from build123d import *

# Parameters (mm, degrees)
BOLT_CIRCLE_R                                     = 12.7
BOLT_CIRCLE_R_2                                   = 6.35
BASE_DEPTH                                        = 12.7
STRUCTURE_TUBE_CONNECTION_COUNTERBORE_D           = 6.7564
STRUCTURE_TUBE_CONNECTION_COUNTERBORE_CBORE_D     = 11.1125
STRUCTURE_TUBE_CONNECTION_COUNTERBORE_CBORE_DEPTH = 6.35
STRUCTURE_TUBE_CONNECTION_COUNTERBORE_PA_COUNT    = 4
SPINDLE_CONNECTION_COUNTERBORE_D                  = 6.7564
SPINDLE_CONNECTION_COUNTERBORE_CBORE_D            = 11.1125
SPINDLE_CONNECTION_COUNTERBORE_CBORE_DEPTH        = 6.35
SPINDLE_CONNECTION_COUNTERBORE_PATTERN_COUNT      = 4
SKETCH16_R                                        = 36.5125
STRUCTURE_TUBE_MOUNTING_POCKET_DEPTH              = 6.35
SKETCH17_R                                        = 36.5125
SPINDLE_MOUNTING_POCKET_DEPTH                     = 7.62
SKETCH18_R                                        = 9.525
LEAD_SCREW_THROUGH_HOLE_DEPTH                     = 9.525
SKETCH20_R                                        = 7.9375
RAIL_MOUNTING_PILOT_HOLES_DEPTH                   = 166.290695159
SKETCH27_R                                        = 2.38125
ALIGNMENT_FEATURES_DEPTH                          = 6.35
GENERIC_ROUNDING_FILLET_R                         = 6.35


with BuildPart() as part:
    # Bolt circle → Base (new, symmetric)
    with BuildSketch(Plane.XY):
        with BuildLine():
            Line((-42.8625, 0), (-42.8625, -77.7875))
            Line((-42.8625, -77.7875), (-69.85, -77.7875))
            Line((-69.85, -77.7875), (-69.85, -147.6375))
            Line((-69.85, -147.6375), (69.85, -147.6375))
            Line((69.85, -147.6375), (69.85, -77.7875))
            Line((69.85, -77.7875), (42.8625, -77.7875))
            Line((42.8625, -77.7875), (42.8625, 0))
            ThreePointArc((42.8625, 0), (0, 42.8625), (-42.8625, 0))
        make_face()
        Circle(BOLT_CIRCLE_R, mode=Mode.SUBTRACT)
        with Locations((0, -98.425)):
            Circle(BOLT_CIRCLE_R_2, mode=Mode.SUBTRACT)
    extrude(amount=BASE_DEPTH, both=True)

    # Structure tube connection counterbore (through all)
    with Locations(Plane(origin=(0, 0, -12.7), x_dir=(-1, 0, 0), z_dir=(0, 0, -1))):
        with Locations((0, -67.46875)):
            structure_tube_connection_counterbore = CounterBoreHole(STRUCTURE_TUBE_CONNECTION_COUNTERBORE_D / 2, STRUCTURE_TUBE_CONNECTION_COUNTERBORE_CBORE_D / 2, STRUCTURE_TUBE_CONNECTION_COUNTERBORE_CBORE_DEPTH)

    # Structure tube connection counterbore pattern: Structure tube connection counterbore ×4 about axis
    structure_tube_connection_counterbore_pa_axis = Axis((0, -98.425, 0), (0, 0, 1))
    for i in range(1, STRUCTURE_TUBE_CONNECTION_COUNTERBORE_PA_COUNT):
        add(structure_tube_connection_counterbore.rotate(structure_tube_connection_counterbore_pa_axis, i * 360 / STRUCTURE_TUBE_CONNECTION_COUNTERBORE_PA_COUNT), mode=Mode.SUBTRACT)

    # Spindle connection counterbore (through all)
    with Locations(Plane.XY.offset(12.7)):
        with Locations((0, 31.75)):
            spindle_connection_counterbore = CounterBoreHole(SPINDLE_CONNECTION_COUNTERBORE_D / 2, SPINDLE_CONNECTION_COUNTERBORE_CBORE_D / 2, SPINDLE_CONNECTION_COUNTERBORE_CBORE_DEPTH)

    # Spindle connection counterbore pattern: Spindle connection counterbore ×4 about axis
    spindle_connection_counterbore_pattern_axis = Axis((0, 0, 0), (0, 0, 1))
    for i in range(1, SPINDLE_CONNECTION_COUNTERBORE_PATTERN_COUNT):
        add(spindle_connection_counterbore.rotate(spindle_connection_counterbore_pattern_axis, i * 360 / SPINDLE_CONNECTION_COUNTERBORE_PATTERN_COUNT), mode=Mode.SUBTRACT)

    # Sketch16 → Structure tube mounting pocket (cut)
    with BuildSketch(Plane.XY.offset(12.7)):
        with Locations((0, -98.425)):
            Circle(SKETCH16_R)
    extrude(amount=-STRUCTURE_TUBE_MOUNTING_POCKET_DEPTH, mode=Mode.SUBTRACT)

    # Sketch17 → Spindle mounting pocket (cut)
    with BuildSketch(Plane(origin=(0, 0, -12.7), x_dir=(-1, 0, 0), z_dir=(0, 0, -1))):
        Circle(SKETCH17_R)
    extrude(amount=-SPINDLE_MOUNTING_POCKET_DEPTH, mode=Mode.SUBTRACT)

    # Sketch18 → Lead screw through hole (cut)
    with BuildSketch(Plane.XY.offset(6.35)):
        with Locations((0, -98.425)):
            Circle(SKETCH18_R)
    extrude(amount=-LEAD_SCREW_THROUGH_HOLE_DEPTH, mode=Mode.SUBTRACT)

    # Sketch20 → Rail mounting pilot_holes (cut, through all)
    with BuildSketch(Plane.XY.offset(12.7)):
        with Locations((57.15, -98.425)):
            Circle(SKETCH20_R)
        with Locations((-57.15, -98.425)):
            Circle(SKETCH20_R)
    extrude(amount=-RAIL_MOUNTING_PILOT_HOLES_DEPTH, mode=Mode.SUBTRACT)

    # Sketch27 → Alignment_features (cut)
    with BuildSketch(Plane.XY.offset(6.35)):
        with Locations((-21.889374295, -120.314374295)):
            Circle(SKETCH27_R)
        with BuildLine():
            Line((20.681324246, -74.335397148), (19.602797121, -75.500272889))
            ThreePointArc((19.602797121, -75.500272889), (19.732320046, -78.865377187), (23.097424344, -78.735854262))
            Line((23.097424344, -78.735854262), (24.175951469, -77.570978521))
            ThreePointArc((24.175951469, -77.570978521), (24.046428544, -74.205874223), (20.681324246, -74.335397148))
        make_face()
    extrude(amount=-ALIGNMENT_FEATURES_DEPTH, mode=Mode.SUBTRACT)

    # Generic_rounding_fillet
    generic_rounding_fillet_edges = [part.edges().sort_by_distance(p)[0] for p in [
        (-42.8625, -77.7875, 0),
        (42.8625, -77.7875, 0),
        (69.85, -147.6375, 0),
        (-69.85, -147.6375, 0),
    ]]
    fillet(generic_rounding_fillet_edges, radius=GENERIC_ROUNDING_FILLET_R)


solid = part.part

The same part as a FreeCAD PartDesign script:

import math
import FreeCAD as App
import Part
import Sketcher
Q = App.Units.Quantity


def edges_at(feature, points):
    """Names of the edges that pass closest to the given points."""
    edges = feature.Shape.Edges
    near = lambda p: min(range(len(edges)), key=lambda i: edges[i].distToShape(Part.Vertex(*p))[0])
    return sorted({f"Edge{near(p) + 1}" for p in points})

doc = App.newDocument("Part")
body = doc.addObject("PartDesign::Body", "Body")

# Sketch on XY plane
sketch1 = doc.addObject("Sketcher::SketchObject", "Sketch")
body.addObject(sketch1)
sketch1.AttachmentSupport = (doc.XY_Plane, [""])
sketch1.MapMode = "FlatFace"
sketch1.addGeometry(Part.LineSegment(App.Vector(-43, 0, 0), App.Vector(-43, -78, 0)), False)
sketch1.addGeometry(Part.LineSegment(App.Vector(-43, -78, 0), App.Vector(-70, -78, 0)), False)
sketch1.addGeometry(Part.LineSegment(App.Vector(-70, -78, 0), App.Vector(-70, -148, 0)), False)
sketch1.addGeometry(Part.LineSegment(App.Vector(-70, -148, 0), App.Vector(70, -148, 0)), False)
sketch1.addGeometry(Part.LineSegment(App.Vector(70, -148, 0), App.Vector(70, -78, 0)), False)
sketch1.addGeometry(Part.LineSegment(App.Vector(70, -78, 0), App.Vector(43, -78, 0)), False)
sketch1.addGeometry(Part.LineSegment(App.Vector(43, -78, 0), App.Vector(43, 0, 0)), False)
sketch1.addGeometry(Part.ArcOfCircle(Part.Circle(App.Vector(0, 0, 0), App.Vector(0, 0, 1), 43), math.radians(0), math.radians(180)), False)
sketch1.addGeometry(Part.Circle(App.Vector(0, -98, 0), App.Vector(0, 0, 1), 6), False)
sketch1.addGeometry(Part.Circle(App.Vector(0, 0, 0), App.Vector(0, 0, 1), 13), False)
sketch1.addConstraint(Sketcher.Constraint("Coincident", 0, 2, 1, 1))
sketch1.addConstraint(Sketcher.Constraint("Coincident", 1, 2, 2, 1))
sketch1.addConstraint(Sketcher.Constraint("Coincident", 2, 2, 3, 1))
sketch1.addConstraint(Sketcher.Constraint("Coincident", 3, 2, 4, 1))
sketch1.addConstraint(Sketcher.Constraint("Coincident", 4, 2, 5, 1))
sketch1.addConstraint(Sketcher.Constraint("Coincident", 5, 2, 6, 1))
sketch1.addConstraint(Sketcher.Constraint("Tangent", 6, 2, 7, 1))
sketch1.addConstraint(Sketcher.Constraint("Tangent", 7, 2, 0, 1))
sketch1.addConstraint(Sketcher.Constraint("Vertical", 0))
sketch1.addConstraint(Sketcher.Constraint("Horizontal", 1))
sketch1.addConstraint(Sketcher.Constraint("Vertical", 2))
sketch1.addConstraint(Sketcher.Constraint("Horizontal", 3))
sketch1.addConstraint(Sketcher.Constraint("Vertical", 4))
sketch1.addConstraint(Sketcher.Constraint("Horizontal", 5))
sketch1.addConstraint(Sketcher.Constraint("Vertical", 6))
sketch1.addConstraint(Sketcher.Constraint("Coincident", 7, 3, -1, 1))
sketch1.addConstraint(Sketcher.Constraint("Coincident", 9, 3, -1, 1))
sketch1.addConstraint(Sketcher.Constraint("Symmetric", 1, 2, 4, 2, -2))
sketch1.addConstraint(Sketcher.Constraint("PointOnObject", 8, 3, -2))
sketch1.addConstraint(Sketcher.Constraint("Diameter", 9, Q("1 in")))
sketch1.addConstraint(Sketcher.Constraint("Diameter", 8, Q("0.5 in")))
sketch1.addConstraint(Sketcher.Constraint("DistanceX", 3, 1, 3, 2, Q("5.5 in")))
sketch1.addConstraint(Sketcher.Constraint("Radius", 7, Q("1.6875 in")))
sketch1.addConstraint(Sketcher.Constraint("DistanceY", 2, 2, 2, 1, Q("2.75 in")))
sketch1.addConstraint(Sketcher.Constraint("DistanceY", 0, 2, 0, 1, Q("3.0625 in")))
sketch1.addConstraint(Sketcher.Constraint("DistanceY", 8, 3, -1, 1, Q("3.875 in")))
pad1 = doc.addObject("PartDesign::Pad", "Pad")
body.addObject(pad1)
pad1.Profile = sketch1
pad1.Length = Q("1 in")
pad1.Midplane = True

# Sketch on XY plane
sketch2 = doc.addObject("Sketcher::SketchObject", "Sketch001")
body.addObject(sketch2)
sketch2.AttachmentSupport = (doc.XY_Plane, [""])
sketch2.MapMode = "FlatFace"
sketch2.AttachmentOffset = App.Placement(App.Vector(0, 0, -0.5 * 25.4), App.Rotation())
sketch2.addGeometry(Part.Circle(App.Vector(0, -67.5, 0), App.Vector(0, 0, 1), 3.4), False)
sketch2.addConstraint(Sketcher.Constraint("PointOnObject", 0, 3, -2))
sketch2.addConstraint(Sketcher.Constraint("Diameter", 0, Q("0.266 in")))
sketch2.addConstraint(Sketcher.Constraint("DistanceY", 0, 3, -1, 1, Q("2.65625 in")))
doc.recompute()
hole = doc.addObject("PartDesign::Hole", "Hole")
body.addObject(hole)
hole.Profile = sketch2
hole.ThreadType = "None"
hole.Diameter = Q("0.266 in")
hole.DepthType = "ThroughAll"
hole.HoleCutType = "Counterbore"
hole.HoleCutDiameter = Q("0.4375 in")
hole.HoleCutDepth = Q("0.25 in")
hole.Reversed = True
doc.recompute()

datumline = doc.addObject("PartDesign::Line", "DatumLine")
body.addObject(datumline)
datumline.Placement = App.Placement(App.Vector(0, -98.425, 0), App.Rotation(App.Vector(0, 0, 1), App.Vector(0, 0, 1)))
polarpattern = doc.addObject("PartDesign::PolarPattern", "PolarPattern")
body.addObject(polarpattern)
polarpattern.Originals = [hole]
polarpattern.Axis = (datumline, [""])
polarpattern.Angle = 360
polarpattern.Occurrences = 4
body.Tip = polarpattern

# Sketch on XY plane
sketch3 = doc.addObject("Sketcher::SketchObject", "Sketch002")
body.addObject(sketch3)
sketch3.AttachmentSupport = (doc.XY_Plane, [""])
sketch3.MapMode = "FlatFace"
sketch3.AttachmentOffset = App.Placement(App.Vector(0, 0, 0.5 * 25.4), App.Rotation())
sketch3.addGeometry(Part.Circle(App.Vector(0, 31.8, 0), App.Vector(0, 0, 1), 3.4), False)
sketch3.addConstraint(Sketcher.Constraint("PointOnObject", 0, 3, -2))
sketch3.addConstraint(Sketcher.Constraint("Diameter", 0, Q("0.266 in")))
sketch3.addConstraint(Sketcher.Constraint("DistanceY", -1, 1, 0, 3, Q("1.25 in")))
doc.recompute()
hole2 = doc.addObject("PartDesign::Hole", "Hole001")
body.addObject(hole2)
hole2.Profile = sketch3
hole2.ThreadType = "None"
hole2.Diameter = Q("0.266 in")
hole2.DepthType = "ThroughAll"
hole2.HoleCutType = "Counterbore"
hole2.HoleCutDiameter = Q("0.4375 in")
hole2.HoleCutDepth = Q("0.25 in")
doc.recompute()

polarpattern2 = doc.addObject("PartDesign::PolarPattern", "PolarPattern001")
body.addObject(polarpattern2)
polarpattern2.Originals = [hole2]
polarpattern2.Axis = (doc.Z_Axis, [""])
polarpattern2.Angle = 360
polarpattern2.Occurrences = 4
body.Tip = polarpattern2

# Sketch on XY plane
sketch4 = doc.addObject("Sketcher::SketchObject", "Sketch003")
body.addObject(sketch4)
sketch4.AttachmentSupport = (doc.XY_Plane, [""])
sketch4.MapMode = "FlatFace"
sketch4.AttachmentOffset = App.Placement(App.Vector(0, 0, 0.5 * 25.4), App.Rotation())
sketch4.addGeometry(Part.Circle(App.Vector(0, -98, 0), App.Vector(0, 0, 1), 37), False)
sketch4.addConstraint(Sketcher.Constraint("PointOnObject", 0, 3, -2))
sketch4.addConstraint(Sketcher.Constraint("Diameter", 0, Q("2.875 in")))
sketch4.addConstraint(Sketcher.Constraint("DistanceY", 0, 3, -1, 1, Q("3.875 in")))
pocket1 = doc.addObject("PartDesign::Pocket", "Pocket")
body.addObject(pocket1)
pocket1.Profile = sketch4
pocket1.Length = Q("0.25 in")

# Sketch on XY plane
sketch5 = doc.addObject("Sketcher::SketchObject", "Sketch004")
body.addObject(sketch5)
sketch5.AttachmentSupport = (doc.XY_Plane, [""])
sketch5.MapMode = "FlatFace"
sketch5.AttachmentOffset = App.Placement(App.Vector(0, 0, -0.5 * 25.4), App.Rotation())
sketch5.addGeometry(Part.Circle(App.Vector(0, 0, 0), App.Vector(0, 0, 1), 37), False)
sketch5.addConstraint(Sketcher.Constraint("Coincident", 0, 3, -1, 1))
sketch5.addConstraint(Sketcher.Constraint("Diameter", 0, Q("2.875 in")))
pocket2 = doc.addObject("PartDesign::Pocket", "Pocket001")
body.addObject(pocket2)
pocket2.Profile = sketch5
pocket2.Length = Q("0.3 in")
pocket2.Reversed = True

# Sketch on XY plane
sketch6 = doc.addObject("Sketcher::SketchObject", "Sketch005")
body.addObject(sketch6)
sketch6.AttachmentSupport = (doc.XY_Plane, [""])
sketch6.MapMode = "FlatFace"
sketch6.AttachmentOffset = App.Placement(App.Vector(0, 0, 0.25 * 25.4), App.Rotation())
sketch6.addGeometry(Part.Circle(App.Vector(0, -98, 0), App.Vector(0, 0, 1), 10), False)
sketch6.addConstraint(Sketcher.Constraint("PointOnObject", 0, 3, -2))
sketch6.addConstraint(Sketcher.Constraint("Diameter", 0, Q("0.75 in")))
sketch6.addConstraint(Sketcher.Constraint("DistanceY", 0, 3, -1, 1, Q("3.875 in")))
pocket3 = doc.addObject("PartDesign::Pocket", "Pocket002")
body.addObject(pocket3)
pocket3.Profile = sketch6
pocket3.Length = Q("0.375 in")

# Sketch on XY plane
sketch7 = doc.addObject("Sketcher::SketchObject", "Sketch006")
body.addObject(sketch7)
sketch7.AttachmentSupport = (doc.XY_Plane, [""])
sketch7.MapMode = "FlatFace"
sketch7.AttachmentOffset = App.Placement(App.Vector(0, 0, 0.5 * 25.4), App.Rotation())
sketch7.addGeometry(Part.Circle(App.Vector(57, -98, 0), App.Vector(0, 0, 1), 8), False)
sketch7.addGeometry(Part.Circle(App.Vector(-57, -98, 0), App.Vector(0, 0, 1), 8), False)
sketch7.addConstraint(Sketcher.Constraint("Equal", 0, 1))
sketch7.addConstraint(Sketcher.Constraint("Symmetric", 0, 3, 1, 3, -2))
sketch7.addConstraint(Sketcher.Constraint("Diameter", 0, Q("0.625 in")))
sketch7.addConstraint(Sketcher.Constraint("DistanceX", 1, 3, 0, 3, Q("4.5 in")))
sketch7.addConstraint(Sketcher.Constraint("DistanceY", 0, 3, -1, 1, Q("3.875 in")))
pocket4 = doc.addObject("PartDesign::Pocket", "Pocket003")
body.addObject(pocket4)
pocket4.Profile = sketch7
pocket4.Type = "ThroughAll"

# Sketch on XY plane
sketch8 = doc.addObject("Sketcher::SketchObject", "Sketch007")
body.addObject(sketch8)
sketch8.AttachmentSupport = (doc.XY_Plane, [""])
sketch8.MapMode = "FlatFace"
sketch8.AttachmentOffset = App.Placement(App.Vector(0, 0, 0.25 * 25.4), App.Rotation())
sketch8.addGeometry(Part.Circle(App.Vector(-21.9, -120.3, 0), App.Vector(0, 0, 1), 2.4), False)
sketch8.addGeometry(Part.LineSegment(App.Vector(20.7, -74.3, 0), App.Vector(19.6, -75.5, 0)), False)
sketch8.addGeometry(Part.ArcOfCircle(Part.Circle(App.Vector(21.4, -77.1, 0), App.Vector(0, 0, 1), 2.4), math.radians(137), math.radians(317)), False)
sketch8.addGeometry(Part.LineSegment(App.Vector(23.1, -78.7, 0), App.Vector(24.2, -77.6, 0)), False)
sketch8.addGeometry(Part.ArcOfCircle(Part.Circle(App.Vector(22.4, -76, 0), App.Vector(0, 0, 1), 2.4), math.radians(-43), math.radians(137)), False)
sketch8.addConstraint(Sketcher.Constraint("Tangent", 1, 2, 2, 1))
sketch8.addConstraint(Sketcher.Constraint("Tangent", 2, 2, 3, 1))
sketch8.addConstraint(Sketcher.Constraint("Tangent", 3, 2, 4, 1))
sketch8.addConstraint(Sketcher.Constraint("Tangent", 4, 2, 1, 1))
sketch8.addConstraint(Sketcher.Constraint("Equal", 0, 2))
sketch8.addConstraint(Sketcher.Constraint("Equal", 2, 4))
sketch8.addConstraint(Sketcher.Constraint("Diameter", 0, Q("0.1875 in")))
sketch8.addConstraint(Sketcher.Constraint("Distance", 1, Q("0.0625 in")))
sketch8.addConstraint(Sketcher.Constraint("DistanceY", 0, 3, 1, 2, 44.814101))
sketch8.addConstraint(Sketcher.Constraint("DistanceX", 0, 3, 2, 2, 44.986799))
sketch8.addConstraint(Sketcher.Constraint("DistanceX", 4, 2, 2, 2, 2.4161))
sketch8.addConstraint(Sketcher.Constraint("DistanceX", -1, 1, 2, 3, 21.350111))
sketch8.addConstraint(Sketcher.Constraint("DistanceY", 3, 2, -1, 1, 77.570979))
pocket5 = doc.addObject("PartDesign::Pocket", "Pocket004")
body.addObject(pocket5)
pocket5.Profile = sketch8
pocket5.Length = Q("0.25 in")
doc.recompute()

fillet = doc.addObject("PartDesign::Fillet", "Fillet")
body.addObject(fillet)
fillet.Base = (pocket5, edges_at(pocket5, [
    (-42.862, -77.787, 0),
    (42.862, -77.787, 0),
    (69.85, -147.637, 0),
    (-69.85, -147.637, 0),
]))
fillet.Radius = Q("0.25 in")

doc.recompute()
